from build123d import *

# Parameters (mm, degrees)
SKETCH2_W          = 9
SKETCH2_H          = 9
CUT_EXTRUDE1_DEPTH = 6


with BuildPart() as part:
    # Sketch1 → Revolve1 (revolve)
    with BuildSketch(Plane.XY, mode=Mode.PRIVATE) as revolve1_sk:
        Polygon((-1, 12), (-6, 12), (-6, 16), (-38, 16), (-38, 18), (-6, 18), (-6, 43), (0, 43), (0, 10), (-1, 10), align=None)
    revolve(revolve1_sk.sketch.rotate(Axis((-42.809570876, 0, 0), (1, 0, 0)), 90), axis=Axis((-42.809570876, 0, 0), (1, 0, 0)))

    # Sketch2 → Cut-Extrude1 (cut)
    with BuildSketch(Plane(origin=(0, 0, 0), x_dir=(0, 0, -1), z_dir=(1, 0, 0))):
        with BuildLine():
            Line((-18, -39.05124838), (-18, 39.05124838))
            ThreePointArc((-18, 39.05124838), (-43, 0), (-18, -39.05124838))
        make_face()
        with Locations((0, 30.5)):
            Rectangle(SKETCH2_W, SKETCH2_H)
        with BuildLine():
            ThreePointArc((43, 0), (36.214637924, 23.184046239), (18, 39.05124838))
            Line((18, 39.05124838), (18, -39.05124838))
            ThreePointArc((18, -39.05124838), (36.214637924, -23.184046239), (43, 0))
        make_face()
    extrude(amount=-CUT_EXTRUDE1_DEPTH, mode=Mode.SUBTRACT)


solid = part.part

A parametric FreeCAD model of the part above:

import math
import FreeCAD as App
import Part
import Sketcher

V = App.Vector

doc = App.newDocument("Part")
body = doc.addObject("PartDesign::Body", "Body")

# Sketch on XY plane
sketch1 = body.newObject("Sketcher::SketchObject", "Sketch")
sketch1.AttachmentSupport = (doc.getObject("XY_Plane"), [""])
sketch1.MapMode = "FlatFace"
sketch1.addGeometry([
    Part.LineSegment(V(-6, 12, 0), V(-1, 12, 0)),  # 0
    Part.LineSegment(V(-1, 12, 0), V(-1, 10, 0)),  # 1
    Part.LineSegment(V(-1, 10, 0), V(0, 10, 0)),  # 2
    Part.LineSegment(V(0, 10, 0), V(0, 43, 0)),  # 3
    Part.LineSegment(V(0, 43, 0), V(-6, 43, 0)),  # 4
    Part.LineSegment(V(-6, 43, 0), V(-6, 18, 0)),  # 5
    Part.LineSegment(V(-6, 18, 0), V(-38, 18, 0)),  # 6
    Part.LineSegment(V(-38, 18, 0), V(-38, 16, 0)),  # 7
    Part.LineSegment(V(-38, 16, 0), V(-6, 16, 0)),  # 8
    Part.LineSegment(V(-6, 16, 0), V(-6, 12, 0)),  # 9
], False)
sketch1.addConstraint([
    Sketcher.Constraint("Coincident", 0, 2, 1, 1),
    Sketcher.Constraint("Coincident", 1, 2, 2, 1),
    Sketcher.Constraint("Coincident", 2, 2, 3, 1),
    Sketcher.Constraint("Coincident", 3, 2, 4, 1),
    Sketcher.Constraint("Coincident", 4, 2, 5, 1),
    Sketcher.Constraint("Coincident", 5, 2, 6, 1),
    Sketcher.Constraint("Coincident", 6, 2, 7, 1),
    Sketcher.Constraint("Coincident", 7, 2, 8, 1),
    Sketcher.Constraint("Coincident", 8, 2, 9, 1),
    Sketcher.Constraint("Coincident", 9, 2, 0, 1),
    Sketcher.Constraint("Horizontal", 0),
    Sketcher.Constraint("Vertical", 1),
    Sketcher.Constraint("Horizontal", 2),
    Sketcher.Constraint("Vertical", 3),
    Sketcher.Constraint("Horizontal", 4),
    Sketcher.Constraint("Vertical", 5),
    Sketcher.Constraint("Horizontal", 6),
    Sketcher.Constraint("Vertical", 7),
    Sketcher.Constraint("Horizontal", 8),
    Sketcher.Constraint("Vertical", 9),
    Sketcher.Constraint("PointOnObject", 2, 2, -2),
    Sketcher.Constraint("Vertical", 5, 2, 8, 2),
    Sketcher.Constraint("Equal", 1, 7),
    Sketcher.Constraint("DistanceX", 0, 1, 0, 2, 5.0),
    Sketcher.Constraint("DistanceX", 2, 1, 2, 2, 1.0),
    Sketcher.Constraint("DistanceX", 6, 2, 6, 1, 32.0),
    Sketcher.Constraint("DistanceY", 1, 2, 1, 1, 2.0),
    Sketcher.Constraint("DistanceY", 3, 1, 3, 2, 33.0),
    Sketcher.Constraint("DistanceY", 5, 2, 5, 1, 25.0),
    Sketcher.Constraint("DistanceY", -1, 1, 0, 2, 12.0),
])
revolution = body.newObject("PartDesign::Revolution", "Revolution")
revolution.Profile = sketch1
revolution.ReferenceAxis = (sketch1, ["H_Axis"])
revolution.Angle = 360

# Sketch on YZ plane
sketch2 = body.newObject("Sketcher::SketchObject", "Sketch001")
sketch2.AttachmentSupport = (doc.getObject("YZ_Plane"), [""])
sketch2.MapMode = "FlatFace"
sketch2.addGeometry([
    Part.LineSegment(V(-39, 18, 0), V(39, 18, 0)),  # 0
    Part.ArcOfCircle(Part.Circle(V(0, 0, 0), V(0, 0, 1), 43), math.radians(25), math.radians(155)),  # 1
    Part.LineSegment(V(35, 4, 0), V(26, 4, 0)),  # 2
    Part.LineSegment(V(26, 4, 0), V(26, -4, 0)),  # 3
    Part.LineSegment(V(26, -4, 0), V(35, -4, 0)),  # 4
    Part.LineSegment(V(35, -4, 0), V(35, 4, 0)),  # 5
    Part.ArcOfCircle(Part.Circle(V(0, 0, 0), V(0, 0, 1), 43), math.radians(-90), math.radians(-25)),  # 6
    Part.LineSegment(V(39, -18, 0), V(-39, -18, 0)),  # 7
    Part.ArcOfCircle(Part.Circle(V(0, 0, 0), V(0, 0, 1), 43), math.radians(-155), math.radians(-90)),  # 8
], False)
sketch2.addConstraint([
    Sketcher.Constraint("Coincident", 0, 1, 1, 2),
    Sketcher.Constraint("Coincident", 1, 1, 0, 2),
    Sketcher.Constraint("Coincident", 2, 2, 3, 1),
    Sketcher.Constraint("Coincident", 3, 2, 4, 1),
    Sketcher.Constraint("Coincident", 4, 2, 5, 1),
    Sketcher.Constraint("Coincident", 5, 2, 2, 1),
    Sketcher.Constraint("Coincident", 6, 2, 7, 1),
    Sketcher.Constraint("Coincident", 7, 2, 8, 1),
    Sketcher.Constraint("Tangent", 8, 2, 6, 1),
    Sketcher.Constraint("Horizontal", 0),
    Sketcher.Constraint("Horizontal", 2),
    Sketcher.Constraint("Vertical", 3),
    Sketcher.Constraint("Horizontal", 4),
    Sketcher.Constraint("Vertical", 5),
    Sketcher.Constraint("Horizontal", 7),
    Sketcher.Constraint("Coincident", 1, 3, -1, 1),
    Sketcher.Constraint("Coincident", 6, 3, -1, 1),
    Sketcher.Constraint("Equal", 1, 6),
    Sketcher.Constraint("Equal", 6, 8),
    Sketcher.Constraint("PointOnObject", 8, 2, -2),
    Sketcher.Constraint("Vertical", 1, 1, 6, 2),
    Sketcher.Constraint("Equal", 4, 3),
    Sketcher.Constraint("Radius", 1, 43.0),
    Sketcher.Constraint("DistanceX", 2, 2, 2, 1, 9.0),
    Sketcher.Constraint("DistanceY", -1, 1, 0, 1, 18.0),
    Sketcher.Constraint("DistanceX", -1, 1, 2, 2, 26.0),
    Sketcher.Constraint("DistanceY", -1, 1, 2, 2, 4.5),
])
pocket1 = body.newObject("PartDesign::Pocket", "Pocket")
pocket1.Profile = sketch2
pocket1.Length = 6

doc.recompute()
